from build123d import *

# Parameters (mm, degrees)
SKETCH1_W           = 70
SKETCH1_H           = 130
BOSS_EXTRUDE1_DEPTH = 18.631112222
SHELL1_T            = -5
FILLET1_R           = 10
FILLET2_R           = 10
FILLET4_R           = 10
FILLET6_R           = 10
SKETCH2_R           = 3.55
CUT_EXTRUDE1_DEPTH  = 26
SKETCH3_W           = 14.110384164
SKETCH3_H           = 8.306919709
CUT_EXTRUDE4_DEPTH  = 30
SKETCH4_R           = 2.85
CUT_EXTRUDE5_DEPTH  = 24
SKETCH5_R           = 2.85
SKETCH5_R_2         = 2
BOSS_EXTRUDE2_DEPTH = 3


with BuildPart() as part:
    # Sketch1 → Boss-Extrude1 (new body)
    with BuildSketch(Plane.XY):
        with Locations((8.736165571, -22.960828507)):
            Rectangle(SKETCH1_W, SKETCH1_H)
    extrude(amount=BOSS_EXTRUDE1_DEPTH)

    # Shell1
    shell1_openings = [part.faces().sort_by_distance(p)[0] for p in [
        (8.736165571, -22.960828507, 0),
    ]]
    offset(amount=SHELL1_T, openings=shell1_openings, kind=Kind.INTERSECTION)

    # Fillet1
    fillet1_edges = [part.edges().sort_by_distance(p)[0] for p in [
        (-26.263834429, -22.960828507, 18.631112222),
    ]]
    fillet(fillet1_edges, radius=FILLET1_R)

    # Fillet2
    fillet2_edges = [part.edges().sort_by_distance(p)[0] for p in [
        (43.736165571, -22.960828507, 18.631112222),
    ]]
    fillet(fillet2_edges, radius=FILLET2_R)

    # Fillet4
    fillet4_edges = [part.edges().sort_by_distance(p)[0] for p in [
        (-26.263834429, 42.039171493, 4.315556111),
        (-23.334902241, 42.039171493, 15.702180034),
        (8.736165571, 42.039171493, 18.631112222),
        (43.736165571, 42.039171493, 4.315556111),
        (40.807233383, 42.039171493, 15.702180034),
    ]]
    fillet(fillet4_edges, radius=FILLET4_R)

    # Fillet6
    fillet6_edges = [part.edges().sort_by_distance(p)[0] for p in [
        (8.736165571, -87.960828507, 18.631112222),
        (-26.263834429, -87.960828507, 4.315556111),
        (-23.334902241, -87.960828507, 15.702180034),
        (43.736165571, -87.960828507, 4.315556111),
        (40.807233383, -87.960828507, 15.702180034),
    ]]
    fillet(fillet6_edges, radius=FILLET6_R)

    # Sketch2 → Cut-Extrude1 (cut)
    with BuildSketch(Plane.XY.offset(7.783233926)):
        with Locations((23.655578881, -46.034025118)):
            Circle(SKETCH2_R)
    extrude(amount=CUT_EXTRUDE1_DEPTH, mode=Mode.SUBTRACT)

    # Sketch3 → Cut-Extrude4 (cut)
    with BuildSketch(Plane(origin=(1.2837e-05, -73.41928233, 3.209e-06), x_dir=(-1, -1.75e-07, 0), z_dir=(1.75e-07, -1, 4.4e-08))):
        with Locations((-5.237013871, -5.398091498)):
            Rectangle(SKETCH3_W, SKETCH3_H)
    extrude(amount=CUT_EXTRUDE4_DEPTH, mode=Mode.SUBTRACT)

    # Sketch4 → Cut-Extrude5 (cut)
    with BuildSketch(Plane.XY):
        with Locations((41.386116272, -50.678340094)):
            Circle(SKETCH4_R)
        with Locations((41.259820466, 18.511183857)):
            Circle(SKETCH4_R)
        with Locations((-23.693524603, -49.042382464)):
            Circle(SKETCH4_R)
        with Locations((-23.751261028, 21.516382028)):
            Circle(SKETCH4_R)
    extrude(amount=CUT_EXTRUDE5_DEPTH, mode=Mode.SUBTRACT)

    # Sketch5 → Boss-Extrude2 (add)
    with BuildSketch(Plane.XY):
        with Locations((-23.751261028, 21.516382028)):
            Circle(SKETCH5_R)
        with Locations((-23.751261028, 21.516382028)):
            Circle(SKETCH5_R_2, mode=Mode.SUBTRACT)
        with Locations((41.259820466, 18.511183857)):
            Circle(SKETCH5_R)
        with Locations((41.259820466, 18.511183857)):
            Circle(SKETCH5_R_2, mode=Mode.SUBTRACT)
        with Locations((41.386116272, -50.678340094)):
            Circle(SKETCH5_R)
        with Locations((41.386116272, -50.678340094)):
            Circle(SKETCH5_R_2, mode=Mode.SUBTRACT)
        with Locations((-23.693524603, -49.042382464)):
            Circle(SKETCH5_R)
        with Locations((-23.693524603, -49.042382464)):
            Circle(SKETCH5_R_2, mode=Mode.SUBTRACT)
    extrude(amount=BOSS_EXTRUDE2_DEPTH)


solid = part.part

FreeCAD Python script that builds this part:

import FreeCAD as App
import Part
import Sketcher

V = App.Vector


def edges_at(feature, points):
    """Names of the edges that pass closest to the given points."""
    edges = feature.Shape.Edges
    near = lambda p: min(range(len(edges)), key=lambda i: edges[i].distToShape(Part.Vertex(*p))[0])
    return sorted({f"Edge{near(p) + 1}" for p in points})


def faces_at(feature, points):
    """Names of the faces that lie closest to the given points."""
    faces = feature.Shape.Faces
    near = lambda p: min(range(len(faces)), key=lambda i: faces[i].distToShape(Part.Vertex(*p))[0])
    return sorted({f"Face{near(p) + 1}" for p in points})

doc = App.newDocument("Part")
body = doc.addObject("PartDesign::Body", "Body")

# Sketch on XY plane
sketch1 = body.newObject("Sketcher::SketchObject", "Sketch")
sketch1.AttachmentSupport = (doc.getObject("XY_Plane"), [""])
sketch1.MapMode = "FlatFace"
sketch1.addGeometry([
    Part.LineSegment(V(-26, 42, 0), V(-26, -88, 0)),
    Part.LineSegment(V(-26, -88, 0), V(44, -88, 0)),
    Part.LineSegment(V(44, -88, 0), V(44, 42, 0)),
    Part.LineSegment(V(44, 42, 0), V(-26, 42, 0)),
], False)
sketch1.addConstraint([
    Sketcher.Constraint("Coincident", 0, 2, 1, 1),
    Sketcher.Constraint("Coincident", 1, 2, 2, 1),
    Sketcher.Constraint("Coincident", 2, 2, 3, 1),
    Sketcher.Constraint("Coincident", 3, 2, 0, 1),
    Sketcher.Constraint("Vertical", 0),
    Sketcher.Constraint("Horizontal", 1),
    Sketcher.Constraint("Vertical", 2),
    Sketcher.Constraint("Horizontal", 3),
    Sketcher.Constraint("DistanceX", 1, 1, 1, 2, 70.0),
    Sketcher.Constraint("DistanceY", 0, 2, 0, 1, 130.0),
    Sketcher.Constraint("DistanceY", 0, 2, -1, 1, 87.960829),
    Sketcher.Constraint("DistanceX", 0, 2, -1, 1, 26.263834),
])
pad1 = body.newObject("PartDesign::Pad", "Pad")
pad1.Profile = sketch1
pad1.Length = 18.631112
doc.recompute()

thickness = body.newObject("PartDesign::Thickness", "Thickness")
thickness.Base = (pad1, faces_at(pad1, [(8.736, -22.961, 0)]))
thickness.Value = 5
thickness.Reversed = True
thickness.Join = "Intersection"
doc.recompute()

fillet = body.newObject("PartDesign::Fillet", "Fillet")
fillet.Base = (thickness, edges_at(thickness, [(-26.264, -22.961, 18.631)]))
fillet.Radius = 10
doc.recompute()

fillet2 = body.newObject("PartDesign::Fillet", "Fillet001")
fillet2.Base = (fillet, edges_at(fillet, [(43.736, -22.961, 18.631)]))
fillet2.Radius = 10
doc.recompute()

fillet3 = body.newObject("PartDesign::Fillet", "Fillet002")
fillet3.Base = (fillet2, edges_at(fillet2, [
    (-26.264, 42.039, 4.316),
    (-23.335, 42.039, 15.702),
    (8.736, 42.039, 18.631),
    (43.736, 42.039, 4.316),
    (40.807, 42.039, 15.702),
]))
fillet3.Radius = 10
doc.recompute()

fillet4 = body.newObject("PartDesign::Fillet", "Fillet003")
fillet4.Base = (fillet3, edges_at(fillet3, [
    (8.736, -87.961, 18.631),
    (-26.264, -87.961, 4.316),
    (-23.335, -87.961, 15.702),
    (43.736, -87.961, 4.316),
    (40.807, -87.961, 15.702),
]))
fillet4.Radius = 10

# Sketch on XY plane
sketch2 = body.newObject("Sketcher::SketchObject", "Sketch001")
sketch2.AttachmentSupport = (doc.getObject("XY_Plane"), [""])
sketch2.MapMode = "FlatFace"
sketch2.AttachmentOffset = App.Placement(V(0, 0, 7.783234), App.Rotation())
sketch2.addGeometry(Part.Circle(V(23.7, -46, 0), V(0, 0, 1), 3.5), False)
sketch2.addConstraint([
    Sketcher.Constraint("Diameter", 0, 7.1),
    Sketcher.Constraint("DistanceX", -1, 1, 0, 3, 23.655579),
    Sketcher.Constraint("DistanceY", 0, 3, -1, 1, 46.034025),
])
pocket1 = body.newObject("PartDesign::Pocket", "Pocket")
pocket1.Profile = sketch2
pocket1.Length = 26
pocket1.Reversed = True

# Sketch on XZ plane
sketch3 = body.newObject("Sketcher::SketchObject", "Sketch002")
sketch3.AttachmentSupport = (doc.getObject("XZ_Plane"), [""])
sketch3.MapMode = "FlatFace"
sketch3.AttachmentOffset = App.Placement(V(0, 0, 73.419282), App.Rotation())
sketch3.addGeometry([
    Part.LineSegment(V(12, 1, 0), V(12, 10, 0)),
    Part.LineSegment(V(12, 10, 0), V(-2, 10, 0)),
    Part.LineSegment(V(-2, 10, 0), V(-2, 1, 0)),
    Part.LineSegment(V(-2, 1, 0), V(12, 1, 0)),
], False)
sketch3.addConstraint([
    Sketcher.Constraint("Coincident", 0, 2, 1, 1),
    Sketcher.Constraint("Coincident", 1, 2, 2, 1),
    Sketcher.Constraint("Coincident", 2, 2, 3, 1),
    Sketcher.Constraint("Coincident", 3, 2, 0, 1),
    Sketcher.Constraint("Vertical", 0),
    Sketcher.Constraint("Horizontal", 1),
    Sketcher.Constraint("Vertical", 2),
    Sketcher.Constraint("Horizontal", 3),
    Sketcher.Constraint("DistanceY", 0, 1, 0, 2, 8.30692),
    Sketcher.Constraint("DistanceX", 1, 2, 1, 1, 14.110384),
    Sketcher.Constraint("DistanceX", -1, 1, 0, 2, 12.292219),
    Sketcher.Constraint("DistanceY", -1, 1, 0, 2, 9.551555),
])
pocket2 = body.newObject("PartDesign::Pocket", "Pocket001")
pocket2.Profile = sketch3
pocket2.Length = 30
pocket2.Reversed = True

# Sketch on XY plane
sketch4 = body.newObject("Sketcher::SketchObject", "Sketch003")
sketch4.AttachmentSupport = (doc.getObject("XY_Plane"), [""])
sketch4.MapMode = "FlatFace"
sketch4.addGeometry([
    Part.Circle(V(41.4, -50.7, 0), V(0, 0, 1), 2.9),
    Part.Circle(V(41.3, 18.5, 0), V(0, 0, 1), 2.9),
    Part.Circle(V(-23.7, -49, 0), V(0, 0, 1), 2.9),
    Part.Circle(V(-23.8, 21.5, 0), V(0, 0, 1), 2.9),
], False)
sketch4.addConstraint([
    Sketcher.Constraint("Equal", 0, 1),
    Sketcher.Constraint("Equal", 1, 2),
    Sketcher.Constraint("Equal", 2, 3),
    Sketcher.Constraint("Diameter", 0, 5.7),
    Sketcher.Constraint("DistanceY", 1, 3, 3, 3, 3.005198),
    Sketcher.Constraint("DistanceY", 0, 3, -1, 1, 50.67834),
    Sketcher.Constraint("DistanceX", -1, 1, 1, 3, 41.25982),
    Sketcher.Constraint("DistanceX", 3, 3, -1, 1, 23.751261),
    Sketcher.Constraint("DistanceX", 2, 3, 0, 3, 65.079641),
    Sketcher.Constraint("DistanceX", -1, 1, 0, 3, 41.386116),
    Sketcher.Constraint("DistanceY", -1, 1, 1, 3, 18.511184),
    Sketcher.Constraint("DistanceY", 2, 3, -1, 1, 49.042382),
])
pocket3 = body.newObject("PartDesign::Pocket", "Pocket002")
pocket3.Profile = sketch4
pocket3.Length = 24
pocket3.Reversed = True

# Sketch on XY plane
sketch5 = body.newObject("Sketcher::SketchObject", "Sketch004")
sketch5.AttachmentSupport = (doc.getObject("XY_Plane"), [""])
sketch5.MapMode = "FlatFace"
sketch5.addGeometry([
    Part.Circle(V(-23.8, 21.5, 0), V(0, 0, 1), 2.9),  # 0
    Part.Circle(V(-23.8, 21.5, 0), V(0, 0, 1), 2),  # 1
    Part.Circle(V(41.3, 18.5, 0), V(0, 0, 1), 2.9),  # 2
    Part.Circle(V(41.3, 18.5, 0), V(0, 0, 1), 2),  # 3
    Part.Circle(V(41.4, -50.7, 0), V(0, 0, 1), 2.9),  # 4
    Part.Circle(V(41.4, -50.7, 0), V(0, 0, 1), 2),  # 5
    Part.Circle(V(-23.7, -49, 0), V(0, 0, 1), 2.9),  # 6
    Part.Circle(V(-23.7, -49, 0), V(0, 0, 1), 2),  # 7
], False)
sketch5.addConstraint([
    Sketcher.Constraint("Coincident", 1, 3, 0, 3),
    Sketcher.Constraint("Coincident", 3, 3, 2, 3),
    Sketcher.Constraint("Coincident", 5, 3, 4, 3),
    Sketcher.Constraint("Coincident", 7, 3, 6, 3),
    Sketcher.Constraint("Equal", 0, 2),
    Sketcher.Constraint("Equal", 1, 3),
    Sketcher.Constraint("Equal", 2, 4),
    Sketcher.Constraint("Equal", 3, 5),
    Sketcher.Constraint("Equal", 4, 6),
    Sketcher.Constraint("Equal", 5, 7),
    Sketcher.Constraint("Diameter", 1, 4.0),
    Sketcher.Constraint("Diameter", 0, 5.7),
    Sketcher.Constraint("DistanceY", 2, 3, 0, 3, 3.005198),
    Sketcher.Constraint("DistanceX", 0, 3, -1, 1, 23.751261),
    Sketcher.Constraint("DistanceX", -1, 1, 2, 3, 41.25982),
    Sketcher.Constraint("DistanceY", 4, 3, -1, 1, 50.67834),
    Sketcher.Constraint("DistanceX", 6, 3, 4, 3, 65.079641),
    Sketcher.Constraint("DistanceY", -1, 1, 0, 3, 21.516382),
    Sketcher.Constraint("DistanceX", -1, 1, 4, 3, 41.386116),
    Sketcher.Constraint("DistanceY", 6, 3, -1, 1, 49.042382),
])
pad2 = body.newObject("PartDesign::Pad", "Pad001")
pad2.Profile = sketch5
pad2.Length = 3

doc.recompute()
